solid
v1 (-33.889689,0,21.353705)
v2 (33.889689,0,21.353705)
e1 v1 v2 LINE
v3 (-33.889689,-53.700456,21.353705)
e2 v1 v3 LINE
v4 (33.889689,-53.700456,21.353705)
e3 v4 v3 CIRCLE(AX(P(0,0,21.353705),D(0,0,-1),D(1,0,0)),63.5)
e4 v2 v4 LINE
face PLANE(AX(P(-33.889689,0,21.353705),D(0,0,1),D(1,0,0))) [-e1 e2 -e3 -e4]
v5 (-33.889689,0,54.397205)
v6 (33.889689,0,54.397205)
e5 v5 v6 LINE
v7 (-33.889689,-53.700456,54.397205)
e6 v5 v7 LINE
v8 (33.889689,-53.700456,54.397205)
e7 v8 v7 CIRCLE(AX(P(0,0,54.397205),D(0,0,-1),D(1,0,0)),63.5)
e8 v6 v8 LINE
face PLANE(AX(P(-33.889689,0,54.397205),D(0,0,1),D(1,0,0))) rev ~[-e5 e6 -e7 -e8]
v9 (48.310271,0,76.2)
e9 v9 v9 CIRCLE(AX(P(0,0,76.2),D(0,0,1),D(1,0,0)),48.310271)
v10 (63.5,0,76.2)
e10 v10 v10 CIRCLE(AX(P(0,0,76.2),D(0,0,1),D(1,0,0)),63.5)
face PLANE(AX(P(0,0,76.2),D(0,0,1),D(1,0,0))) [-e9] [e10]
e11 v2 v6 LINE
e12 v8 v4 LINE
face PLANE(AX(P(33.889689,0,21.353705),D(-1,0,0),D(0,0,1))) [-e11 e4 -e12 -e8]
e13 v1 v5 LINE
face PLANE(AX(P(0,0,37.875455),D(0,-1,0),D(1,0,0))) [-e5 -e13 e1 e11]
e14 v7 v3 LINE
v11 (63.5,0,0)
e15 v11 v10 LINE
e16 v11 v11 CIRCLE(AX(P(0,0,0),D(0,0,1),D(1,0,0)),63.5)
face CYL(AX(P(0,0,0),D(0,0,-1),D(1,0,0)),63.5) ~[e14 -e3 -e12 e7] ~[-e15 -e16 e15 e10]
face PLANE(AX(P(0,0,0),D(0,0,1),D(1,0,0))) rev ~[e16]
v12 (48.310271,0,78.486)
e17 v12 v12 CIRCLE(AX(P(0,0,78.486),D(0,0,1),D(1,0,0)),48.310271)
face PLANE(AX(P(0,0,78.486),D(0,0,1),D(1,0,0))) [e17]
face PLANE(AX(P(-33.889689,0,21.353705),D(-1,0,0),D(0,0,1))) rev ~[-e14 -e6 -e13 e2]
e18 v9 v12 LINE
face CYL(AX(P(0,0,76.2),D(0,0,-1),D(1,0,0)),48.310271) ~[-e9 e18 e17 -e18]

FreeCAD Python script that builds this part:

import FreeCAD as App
import Part
import Sketcher
from FreeCAD import Vector
Q = App.Units.Quantity

doc = App.newDocument("Part")
body = doc.addObject("PartDesign::Body", "Body")

# Sketch on XY plane
sketch1 = body.newObject("Sketcher::SketchObject", "Sketch")
sketch1.AttachmentSupport = (doc.getObject("XY_Plane"), [""])
sketch1.MapMode = "FlatFace"
sketch1.addGeometry(Part.Circle(Vector(0, 0, 0), Vector(0, 0, 1), 64), False)
sketch1.addConstraint(Sketcher.Constraint("Coincident", 0, 3, -1, 1))
sketch1.addConstraint(Sketcher.Constraint("Diameter", 0, Q("5 in")))
pad1 = body.newObject("PartDesign::Pad", "Pad")
pad1.Profile = sketch1
pad1.Length = Q("3 in")

# Sketch on XY plane
sketch2 = body.newObject("Sketcher::SketchObject", "Sketch001")
sketch2.AttachmentSupport = (doc.getObject("XY_Plane"), [""])
sketch2.MapMode = "FlatFace"
sketch2.AttachmentOffset = App.Placement(Vector(0, 0, 3 * 25.4), App.Rotation())
sketch2.addGeometry(Part.Circle(Vector(0, 0, 0), Vector(0, 0, 1), 48), False)
sketch2.addConstraint(Sketcher.Constraint("Coincident", 0, 3, -1, 1))
sketch2.addConstraint(Sketcher.Constraint("Diameter", 0, 96.620542))
pad2 = body.newObject("PartDesign::Pad", "Pad001")
pad2.Profile = sketch2
pad2.Length = Q("0.09 in")

# Sketch on XZ plane
sketch3 = body.newObject("Sketcher::SketchObject", "Sketch002")
sketch3.AttachmentSupport = (doc.getObject("XZ_Plane"), [""])
sketch3.MapMode = "FlatFace"
sketch3.addGeometry(Part.LineSegment(Vector(-34, 54, 0), Vector(-34, 21, 0)), False)
sketch3.addGeometry(Part.LineSegment(Vector(-34, 21, 0), Vector(34, 21, 0)), False)
sketch3.addGeometry(Part.LineSegment(Vector(34, 21, 0), Vector(34, 54, 0)), False)
sketch3.addGeometry(Part.LineSegment(Vector(34, 54, 0), Vector(-34, 54, 0)), False)
sketch3.addConstraint(Sketcher.Constraint("Coincident", 0, 2, 1, 1))
sketch3.addConstraint(Sketcher.Constraint("Coincident", 1, 2, 2, 1))
sketch3.addConstraint(Sketcher.Constraint("Coincident", 2, 2, 3, 1))
sketch3.addConstraint(Sketcher.Constraint("Coincident", 3, 2, 0, 1))
sketch3.addConstraint(Sketcher.Constraint("Vertical", 0))
sketch3.addConstraint(Sketcher.Constraint("Horizontal", 1))
sketch3.addConstraint(Sketcher.Constraint("Vertical", 2))
sketch3.addConstraint(Sketcher.Constraint("Horizontal", 3))
sketch3.addConstraint(Sketcher.Constraint("DistanceY", 0, 2, 0, 1, 33.0435))
sketch3.addConstraint(Sketcher.Constraint("DistanceX", 1, 1, 1, 2, 67.779378))
sketch3.addConstraint(Sketcher.Constraint("DistanceX", 0, 2, -1, 1, 33.889689))
sketch3.addConstraint(Sketcher.Constraint("DistanceY", -1, 1, 0, 2, 21.353705))
pocket1 = body.newObject("PartDesign::Pocket", "Pocket")
pocket1.Profile = sketch3
pocket1.Length = Q("5 in")
pocket1.Reversed = True

doc.recompute()
